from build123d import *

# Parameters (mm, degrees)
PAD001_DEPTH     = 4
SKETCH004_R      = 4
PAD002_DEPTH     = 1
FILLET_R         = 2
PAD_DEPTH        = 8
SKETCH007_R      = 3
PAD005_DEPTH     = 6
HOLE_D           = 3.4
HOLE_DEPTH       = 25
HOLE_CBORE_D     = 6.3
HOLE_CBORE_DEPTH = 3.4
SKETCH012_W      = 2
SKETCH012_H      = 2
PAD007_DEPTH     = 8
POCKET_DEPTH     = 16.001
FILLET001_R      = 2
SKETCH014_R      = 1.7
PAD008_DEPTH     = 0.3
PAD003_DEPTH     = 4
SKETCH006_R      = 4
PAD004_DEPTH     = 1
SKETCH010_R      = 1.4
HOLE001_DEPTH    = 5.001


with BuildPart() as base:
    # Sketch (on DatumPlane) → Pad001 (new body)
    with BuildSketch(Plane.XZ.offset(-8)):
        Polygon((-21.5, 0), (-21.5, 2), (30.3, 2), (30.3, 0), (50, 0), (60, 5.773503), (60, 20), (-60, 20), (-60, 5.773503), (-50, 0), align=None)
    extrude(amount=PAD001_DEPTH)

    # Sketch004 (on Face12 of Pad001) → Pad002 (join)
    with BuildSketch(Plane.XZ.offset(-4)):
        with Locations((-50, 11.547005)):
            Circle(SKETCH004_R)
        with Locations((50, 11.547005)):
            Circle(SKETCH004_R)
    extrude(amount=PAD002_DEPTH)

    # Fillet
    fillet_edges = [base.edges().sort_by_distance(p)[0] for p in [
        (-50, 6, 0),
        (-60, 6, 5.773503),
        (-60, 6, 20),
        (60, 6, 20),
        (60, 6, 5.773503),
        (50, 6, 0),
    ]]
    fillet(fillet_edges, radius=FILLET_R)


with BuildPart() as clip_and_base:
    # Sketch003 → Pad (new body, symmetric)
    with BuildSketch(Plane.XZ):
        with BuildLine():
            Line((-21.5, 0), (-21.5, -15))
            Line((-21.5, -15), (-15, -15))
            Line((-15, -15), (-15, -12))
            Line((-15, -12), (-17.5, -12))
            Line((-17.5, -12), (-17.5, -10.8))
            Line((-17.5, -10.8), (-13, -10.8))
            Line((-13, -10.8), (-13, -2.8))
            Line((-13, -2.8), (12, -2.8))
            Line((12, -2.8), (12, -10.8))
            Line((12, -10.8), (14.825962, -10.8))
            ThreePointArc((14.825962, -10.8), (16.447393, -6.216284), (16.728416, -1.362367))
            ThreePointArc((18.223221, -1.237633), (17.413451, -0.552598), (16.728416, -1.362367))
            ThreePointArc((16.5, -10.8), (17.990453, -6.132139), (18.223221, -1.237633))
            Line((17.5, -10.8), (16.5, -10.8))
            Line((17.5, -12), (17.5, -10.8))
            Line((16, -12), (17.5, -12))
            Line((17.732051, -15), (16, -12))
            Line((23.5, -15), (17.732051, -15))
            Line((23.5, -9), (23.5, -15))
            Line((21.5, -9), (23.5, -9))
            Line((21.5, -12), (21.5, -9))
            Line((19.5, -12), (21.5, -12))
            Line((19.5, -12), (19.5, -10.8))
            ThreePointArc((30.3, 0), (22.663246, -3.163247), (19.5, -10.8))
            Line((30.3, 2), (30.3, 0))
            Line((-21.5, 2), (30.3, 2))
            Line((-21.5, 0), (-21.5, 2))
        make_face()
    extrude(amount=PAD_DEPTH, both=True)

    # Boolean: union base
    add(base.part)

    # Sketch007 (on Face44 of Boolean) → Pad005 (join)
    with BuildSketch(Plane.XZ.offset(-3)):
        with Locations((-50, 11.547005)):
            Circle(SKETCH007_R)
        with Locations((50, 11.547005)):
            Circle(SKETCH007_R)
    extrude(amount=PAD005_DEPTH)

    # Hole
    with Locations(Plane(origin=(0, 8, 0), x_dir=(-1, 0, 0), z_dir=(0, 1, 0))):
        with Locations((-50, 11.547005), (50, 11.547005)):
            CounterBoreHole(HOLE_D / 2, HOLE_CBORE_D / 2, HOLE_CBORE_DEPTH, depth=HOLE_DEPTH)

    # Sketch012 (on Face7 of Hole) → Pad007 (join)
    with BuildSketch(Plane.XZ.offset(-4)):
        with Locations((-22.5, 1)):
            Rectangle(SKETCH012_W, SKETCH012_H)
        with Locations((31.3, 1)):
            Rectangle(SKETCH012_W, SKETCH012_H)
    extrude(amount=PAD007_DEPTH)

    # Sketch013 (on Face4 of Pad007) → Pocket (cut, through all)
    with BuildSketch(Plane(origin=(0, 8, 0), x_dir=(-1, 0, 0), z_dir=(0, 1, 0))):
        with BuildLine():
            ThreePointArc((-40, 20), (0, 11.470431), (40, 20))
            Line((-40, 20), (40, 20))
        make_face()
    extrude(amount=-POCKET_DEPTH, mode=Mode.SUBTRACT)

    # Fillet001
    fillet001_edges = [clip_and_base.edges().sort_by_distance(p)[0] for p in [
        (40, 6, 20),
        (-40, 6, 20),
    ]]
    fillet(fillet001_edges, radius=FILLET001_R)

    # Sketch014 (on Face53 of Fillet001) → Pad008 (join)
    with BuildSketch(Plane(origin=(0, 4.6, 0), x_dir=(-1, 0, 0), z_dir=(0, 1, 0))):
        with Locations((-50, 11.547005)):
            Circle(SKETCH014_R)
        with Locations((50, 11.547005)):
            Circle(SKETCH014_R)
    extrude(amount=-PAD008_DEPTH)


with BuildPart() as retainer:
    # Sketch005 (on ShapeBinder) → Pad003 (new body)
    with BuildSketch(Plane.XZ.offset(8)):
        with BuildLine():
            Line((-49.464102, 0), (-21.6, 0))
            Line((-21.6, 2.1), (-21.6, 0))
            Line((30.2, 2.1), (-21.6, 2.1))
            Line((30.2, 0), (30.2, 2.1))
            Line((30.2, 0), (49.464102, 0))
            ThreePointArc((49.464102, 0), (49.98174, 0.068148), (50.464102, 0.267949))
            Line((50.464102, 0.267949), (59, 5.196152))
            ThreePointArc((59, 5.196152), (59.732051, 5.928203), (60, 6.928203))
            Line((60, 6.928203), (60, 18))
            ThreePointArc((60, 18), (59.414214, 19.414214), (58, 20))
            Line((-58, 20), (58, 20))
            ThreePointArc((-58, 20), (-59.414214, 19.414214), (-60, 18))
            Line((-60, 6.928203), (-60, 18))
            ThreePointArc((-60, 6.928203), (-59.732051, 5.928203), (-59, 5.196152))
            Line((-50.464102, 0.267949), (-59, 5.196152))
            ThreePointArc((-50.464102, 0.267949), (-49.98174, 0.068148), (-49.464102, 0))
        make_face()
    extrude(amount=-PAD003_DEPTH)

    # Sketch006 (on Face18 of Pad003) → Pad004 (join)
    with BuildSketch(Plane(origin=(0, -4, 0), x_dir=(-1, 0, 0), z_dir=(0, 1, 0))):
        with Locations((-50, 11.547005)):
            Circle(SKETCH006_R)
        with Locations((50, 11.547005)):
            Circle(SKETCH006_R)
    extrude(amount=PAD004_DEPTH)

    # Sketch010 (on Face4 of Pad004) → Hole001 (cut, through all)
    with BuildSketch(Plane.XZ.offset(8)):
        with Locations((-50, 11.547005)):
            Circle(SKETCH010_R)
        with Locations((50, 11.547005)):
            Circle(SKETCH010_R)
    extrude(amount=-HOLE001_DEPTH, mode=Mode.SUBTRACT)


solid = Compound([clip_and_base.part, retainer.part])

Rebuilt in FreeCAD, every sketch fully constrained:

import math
import FreeCAD as App
import Part
import Sketcher
Q = App.Units.Quantity


def edges_at(feature, points):
    """Names of the edges that pass closest to the given points."""
    edges = feature.Shape.Edges
    near = lambda p: min(range(len(edges)), key=lambda i: edges[i].distToShape(Part.Vertex(*p))[0])
    return sorted({f"Edge{near(p) + 1}" for p in points})

doc = App.newDocument("Part")
params = doc.addObject("Spreadsheet::Sheet", "Params")
for row, (alias, value) in enumerate([
    ("sketch1_width", "120 mm"),
    ("sketch1_height", "2 mm"),
    ("sketch1_width2", "51.8 mm"),
    ("sketch1_width3", "19.7 mm"),
    ("sketch1_width4", "28.5 mm"),
    ("pad1_length", "4 mm"),
    ("sketch2_diameter", "8 mm"),
    ("pad2_length", "1 mm"),
    ("fillet_radius", "2 mm"),
    ("sketch3_radius", "10.799999 mm"),
    ("sketch3_width", "25 mm"),
    ("sketch3_width2", "1 mm"),
    ("sketch3_width3", "2 mm"),
    ("sketch3_height", "3 mm"),
    ("pad3_length", "16 mm"),
    ("sketch4_diameter", "6 mm"),
    ("pad4_length", "6 mm"),
    ("sketch5_diameter", "3.4 mm"),
    ("hole_diameter", "3.4 mm"),
    ("hole_depth", "25 mm"),
    ("hole_cbore_diameter", "6.3 mm"),
    ("hole_cbore_depth", "3.4 mm"),
    ("sketch6_width", "2 mm"),
    ("pad5_length", "8 mm"),
    ("sketch7_width", "80 mm"),
    ("fillet2_radius", "2 mm"),
    ("sketch8_diameter", "3.4 mm"),
    ("pad6_length", "0.3 mm"),
    ("sketch9_radius", "2 mm"),
    ("sketch9_width", "116 mm"),
    ("sketch9_width2", "51.8 mm"),
    ("sketch9_height", "2.1 mm"),
    ("pad7_length", "4 mm"),
    ("sketch10_diameter", "8 mm"),
    ("pad8_length", "1 mm"),
    ("sketch11_diameter", "2.8 mm"),
], start=1):
    params.set(f"A{row}", alias)
    params.set(f"B{row}", "=" + value)
    params.setAlias(f"B{row}", alias)

body = doc.addObject("PartDesign::Body", "Body")

sketch1 = doc.addObject("Sketcher::SketchObject", "Sketch")
body.addObject(sketch1)
sketch1.AttachmentSupport = (doc.XZ_Plane, [""])
sketch1.MapMode = "FlatFace"
sketch1.AttachmentOffset = App.Placement(App.Vector(0, 0, -8), App.Rotation())
sketch1.addGeometry(Part.LineSegment(App.Vector(-21.5, 0, 0), App.Vector(-21.5, 2, 0)), False)
sketch1.addGeometry(Part.LineSegment(App.Vector(-21.5, 2, 0), App.Vector(30.3, 2, 0)), False)
sketch1.addGeometry(Part.LineSegment(App.Vector(30.3, 2, 0), App.Vector(30.3, 0, 0)), False)
sketch1.addGeometry(Part.LineSegment(App.Vector(30.3, 0, 0), App.Vector(50, 0, 0)), False)
sketch1.addGeometry(Part.LineSegment(App.Vector(50, 0, 0), App.Vector(60, 5.8, 0)), False)
sketch1.addGeometry(Part.LineSegment(App.Vector(60, 5.8, 0), App.Vector(60, 20, 0)), False)
sketch1.addGeometry(Part.LineSegment(App.Vector(60, 20, 0), App.Vector(-60, 20, 0)), False)
sketch1.addGeometry(Part.LineSegment(App.Vector(-60, 20, 0), App.Vector(-60, 5.8, 0)), False)
sketch1.addGeometry(Part.LineSegment(App.Vector(-60, 5.8, 0), App.Vector(-50, 0, 0)), False)
sketch1.addGeometry(Part.LineSegment(App.Vector(-50, 0, 0), App.Vector(-21.5, 0, 0)), False)
sketch1.addConstraint(Sketcher.Constraint("Coincident", 0, 2, 1, 1))
sketch1.addConstraint(Sketcher.Constraint("Coincident", 1, 2, 2, 1))
sketch1.addConstraint(Sketcher.Constraint("Coincident", 2, 2, 3, 1))
sketch1.addConstraint(Sketcher.Constraint("Coincident", 3, 2, 4, 1))
sketch1.addConstraint(Sketcher.Constraint("Coincident", 4, 2, 5, 1))
sketch1.addConstraint(Sketcher.Constraint("Coincident", 5, 2, 6, 1))
sketch1.addConstraint(Sketcher.Constraint("Coincident", 6, 2, 7, 1))
sketch1.addConstraint(Sketcher.Constraint("Coincident", 7, 2, 8, 1))
sketch1.addConstraint(Sketcher.Constraint("Coincident", 8, 2, 9, 1))
sketch1.addConstraint(Sketcher.Constraint("Coincident", 9, 2, 0, 1))
sketch1.addConstraint(Sketcher.Constraint("Vertical", 0))
sketch1.addConstraint(Sketcher.Constraint("Horizontal", 1))
sketch1.addConstraint(Sketcher.Constraint("Vertical", 2))
sketch1.addConstraint(Sketcher.Constraint("Horizontal", 3))
sketch1.addConstraint(Sketcher.Constraint("Vertical", 5))
sketch1.addConstraint(Sketcher.Constraint("Horizontal", 6))
sketch1.addConstraint(Sketcher.Constraint("Vertical", 7))
sketch1.addConstraint(Sketcher.Constraint("Horizontal", 9))
sketch1.addConstraint(Sketcher.Constraint("Symmetric", 3, 2, 8, 2, -1, 1))
sketch1.addConstraint(Sketcher.Constraint("Symmetric", 4, 2, 7, 2, -2))
sketch1.addConstraint(Sketcher.Constraint("PointOnObject", 2, 2, -1))
sketch1.addConstraint(Sketcher.Constraint("DistanceX", 6, 2, 6, 1, Q("120 mm")))
sketch1.addConstraint(Sketcher.Constraint("DistanceY", 0, 1, 0, 2, Q("2 mm")))
sketch1.addConstraint(Sketcher.Constraint("Angle", 4, Q("30.000001 deg")))
sketch1.addConstraint(Sketcher.Constraint("DistanceX", 1, 1, 1, 2, Q("51.8 mm")))
sketch1.addConstraint(Sketcher.Constraint("DistanceX", 3, 1, 3, 2, Q("19.7 mm")))
sketch1.addConstraint(Sketcher.Constraint("DistanceX", 9, 1, 9, 2, Q("28.5 mm")))
sketch1.addConstraint(Sketcher.Constraint("DistanceY", -1, 1, 5, 2, Q("20 mm")))
sketch1.setExpression("Constraints[21]", "Params.sketch1_width")
sketch1.setExpression("Constraints[22]", "Params.sketch1_height")
sketch1.setExpression("Constraints[24]", "Params.sketch1_width2")
sketch1.setExpression("Constraints[25]", "Params.sketch1_width3")
sketch1.setExpression("Constraints[26]", "Params.sketch1_width4")
pad1 = doc.addObject("PartDesign::Pad", "Pad")
body.addObject(pad1)
pad1.Profile = sketch1
pad1.setExpression("Length", "Params.pad1_length")

sketch2 = doc.addObject("Sketcher::SketchObject", "Sketch001")
body.addObject(sketch2)
sketch2.AttachmentSupport = (doc.XZ_Plane, [""])
sketch2.MapMode = "FlatFace"
sketch2.AttachmentOffset = App.Placement(App.Vector(0, 0, -4), App.Rotation())
sketch2.addGeometry(Part.Circle(App.Vector(-50, 11.5, 0), App.Vector(0, 0, 1), 4), False)
sketch2.addGeometry(Part.Circle(App.Vector(50, 11.5, 0), App.Vector(0, 0, 1), 4), False)
sketch2.addConstraint(Sketcher.Constraint("Equal", 0, 1))
sketch2.addConstraint(Sketcher.Constraint("Symmetric", 0, 3, 1, 3, -2))
sketch2.addConstraint(Sketcher.Constraint("Diameter", 0, Q("8 mm")))
sketch2.addConstraint(Sketcher.Constraint("DistanceX", 0, 3, -1, 1, Q("50 mm")))
sketch2.addConstraint(Sketcher.Constraint("DistanceY", -1, 1, 0, 3, Q("11.547005 mm")))
sketch2.setExpression("Constraints[2]", "Params.sketch2_diameter")
pad2 = doc.addObject("PartDesign::Pad", "Pad001")
body.addObject(pad2)
pad2.Profile = sketch2
pad2.setExpression("Length", "Params.pad2_length")
doc.recompute()

fillet = doc.addObject("PartDesign::Fillet", "Fillet")
body.addObject(fillet)
fillet.Base = (pad2, edges_at(pad2, [
    (-50, 6, 0),
    (-60, 6, 5.774),
    (-60, 6, 20),
    (60, 6, 20),
    (60, 6, 5.774),
    (50, 6, 0),
]))
fillet.setExpression("Radius", "Params.fillet_radius")
body2 = doc.addObject("PartDesign::Body", "Body001")

sketch3 = doc.addObject("Sketcher::SketchObject", "Sketch002")
body2.addObject(sketch3)
sketch3.AttachmentSupport = (doc.getObject("XZ_Plane001"), [""])
sketch3.MapMode = "FlatFace"
sketch3.addGeometry(Part.LineSegment(App.Vector(-21.5, -15, 0), App.Vector(-15, -15, 0)), False)
sketch3.addGeometry(Part.LineSegment(App.Vector(-15, -15, 0), App.Vector(-15, -12, 0)), False)
sketch3.addGeometry(Part.LineSegment(App.Vector(-15, -12, 0), App.Vector(-17.5, -12, 0)), False)
sketch3.addGeometry(Part.LineSegment(App.Vector(-17.5, -12, 0), App.Vector(-17.5, -10.8, 0)), False)
sketch3.addGeometry(Part.LineSegment(App.Vector(-17.5, -10.8, 0), App.Vector(-13, -10.8, 0)), False)
sketch3.addGeometry(Part.LineSegment(App.Vector(-13, -10.8, 0), App.Vector(-13, -2.8, 0)), False)
sketch3.addGeometry(Part.LineSegment(App.Vector(-13, -2.8, 0), App.Vector(12, -2.8, 0)), False)
sketch3.addGeometry(Part.LineSegment(App.Vector(12, -2.8, 0), App.Vector(12, -10.8, 0)), False)
sketch3.addGeometry(Part.LineSegment(App.Vector(12, -10.8, 0), App.Vector(14.8, -10.8, 0)), False)
sketch3.addGeometry(Part.ArcOfCircle(Part.Circle(App.Vector(-0.5, -2.8, 0), App.Vector(0, 0, 1), 17.3), math.radians(-28), math.radians(5)), False)
sketch3.addGeometry(Part.ArcOfCircle(Part.Circle(App.Vector(17.5, -1.3, 0), App.Vector(0, 0, 1), 0.8), math.radians(5), math.radians(185)), False)
sketch3.addGeometry(Part.ArcOfCircle(Part.Circle(App.Vector(-0.5, -2.8, 0), App.Vector(0, 0, 1), 18.8), math.radians(-25), math.radians(5)), False)
sketch3.addGeometry(Part.LineSegment(App.Vector(16.5, -10.8, 0), App.Vector(17.5, -10.8, 0)), False)
sketch3.addGeometry(Part.LineSegment(App.Vector(17.5, -10.8, 0), App.Vector(17.5, -12, 0)), False)
sketch3.addGeometry(Part.LineSegment(App.Vector(17.5, -12, 0), App.Vector(16, -12, 0)), False)
sketch3.addGeometry(Part.LineSegment(App.Vector(16, -12, 0), App.Vector(17.7, -15, 0)), False)
sketch3.addGeometry(Part.LineSegment(App.Vector(17.7, -15, 0), App.Vector(23.5, -15, 0)), False)
sketch3.addGeometry(Part.LineSegment(App.Vector(23.5, -15, 0), App.Vector(23.5, -9, 0)), False)
sketch3.addGeometry(Part.LineSegment(App.Vector(23.5, -9, 0), App.Vector(21.5, -9, 0)), False)
sketch3.addGeometry(Part.LineSegment(App.Vector(21.5, -9, 0), App.Vector(21.5, -12, 0)), False)
sketch3.addGeometry(Part.LineSegment(App.Vector(21.5, -12, 0), App.Vector(19.5, -12, 0)), False)
sketch3.addGeometry(Part.LineSegment(App.Vector(19.5, -12, 0), App.Vector(19.5, -10.8, 0)), False)
sketch3.addGeometry(Part.ArcOfCircle(Part.Circle(App.Vector(30.3, -10.8, 0), App.Vector(0, 0, 1), 10.8), math.radians(90), math.radians(180)), False)
sketch3.addGeometry(Part.LineSegment(App.Vector(30.3, 0, 0), App.Vector(30.3, 2, 0)), False)
sketch3.addGeometry(Part.LineSegment(App.Vector(30.3, 2, 0), App.Vector(-21.5, 2, 0)), False)
sketch3.addGeometry(Part.LineSegment(App.Vector(-21.5, 2, 0), App.Vector(-21.5, -15, 0)), False)
sketch3.addConstraint(Sketcher.Constraint("Coincident", 0, 2, 1, 1))
sketch3.addConstraint(Sketcher.Constraint("Coincident", 1, 2, 2, 1))
sketch3.addConstraint(Sketcher.Constraint("Coincident", 2, 2, 3, 1))
sketch3.addConstraint(Sketcher.Constraint("Coincident", 3, 2, 4, 1))
sketch3.addConstraint(Sketcher.Constraint("Coincident", 4, 2, 5, 1))
sketch3.addConstraint(Sketcher.Constraint("Coincident", 5, 2, 6, 1))
sketch3.addConstraint(Sketcher.Constraint("Coincident", 6, 2, 7, 1))
sketch3.addConstraint(Sketcher.Constraint("Coincident", 7, 2, 8, 1))
sketch3.addConstraint(Sketcher.Constraint("Coincident", 8, 2, 9, 1))
sketch3.addConstraint(Sketcher.Constraint("Tangent", 9, 2, 10, 2))
sketch3.addConstraint(Sketcher.Constraint("Tangent", 10, 1, 11, 2))
sketch3.addConstraint(Sketcher.Constraint("Coincident", 11, 1, 12, 1))
sketch3.addConstraint(Sketcher.Constraint("Coincident", 12, 2, 13, 1))
sketch3.addConstraint(Sketcher.Constraint("Coincident", 13, 2, 14, 1))
sketch3.addConstraint(Sketcher.Constraint("Coincident", 14, 2, 15, 1))
sketch3.addConstraint(Sketcher.Constraint("Coincident", 15, 2, 16, 1))
sketch3.addConstraint(Sketcher.Constraint("Coincident", 16, 2, 17, 1))
sketch3.addConstraint(Sketcher.Constraint("Coincident", 17, 2, 18, 1))
sketch3.addConstraint(Sketcher.Constraint("Coincident", 18, 2, 19, 1))
sketch3.addConstraint(Sketcher.Constraint("Coincident", 19, 2, 20, 1))
sketch3.addConstraint(Sketcher.Constraint("Coincident", 20, 2, 21, 1))
sketch3.addConstraint(Sketcher.Constraint("Tangent", 21, 2, 22, 2))
sketch3.addConstraint(Sketcher.Constraint("Coincident", 22, 1, 23, 1))
sketch3.addConstraint(Sketcher.Constraint("Coincident", 23, 2, 24, 1))
sketch3.addConstraint(Sketcher.Constraint("Coincident", 24, 2, 25, 1))
sketch3.addConstraint(Sketcher.Constraint("Coincident", 25, 2, 0, 1))
sketch3.addConstraint(Sketcher.Constraint("Horizontal", 0))
sketch3.addConstraint(Sketcher.Constraint("Vertical", 1))
sketch3.addConstraint(Sketcher.Constraint("Horizontal", 2))
sketch3.addConstraint(Sketcher.Constraint("Vertical", 3))
sketch3.addConstraint(Sketcher.Constraint("Horizontal", 4))
sketch3.addConstraint(Sketcher.Constraint("Vertical", 5))
sketch3.addConstraint(Sketcher.Constraint("Horizontal", 6))
sketch3.addConstraint(Sketcher.Constraint("Vertical", 7))
sketch3.addConstraint(Sketcher.Constraint("Horizontal", 8))
sketch3.addConstraint(Sketcher.Constraint("Horizontal", 12))
sketch3.addConstraint(Sketcher.Constraint("Vertical", 13))
sketch3.addConstraint(Sketcher.Constraint("Horizontal", 14))
sketch3.addConstraint(Sketcher.Constraint("Horizontal", 16))
sketch3.addConstraint(Sketcher.Constraint("Vertical", 17))
sketch3.addConstraint(Sketcher.Constraint("Horizontal", 18))
sketch3.addConstraint(Sketcher.Constraint("Vertical", 19))
sketch3.addConstraint(Sketcher.Constraint("Horizontal", 20))
sketch3.addConstraint(Sketcher.Constraint("Vertical", 21))
sketch3.addConstraint(Sketcher.Constraint("Vertical", 23))
sketch3.addConstraint(Sketcher.Constraint("Horizontal", 24))
sketch3.addConstraint(Sketcher.Constraint("Vertical", 25))
sketch3.addConstraint(Sketcher.Constraint("Coincident", 11, 3, 9, 3))
sketch3.addConstraint(Sketcher.Constraint("Symmetric", 3, 2, 12, 2, -2))
sketch3.addConstraint(Sketcher.Constraint("PointOnObject", 22, 1, -1))
sketch3.addConstraint(Sketcher.Constraint("Horizontal", 22, 3, 3, 2))
sketch3.addConstraint(Sketcher.Constraint("Horizontal", 11, 3, 5, 2))
sketch3.addConstraint(Sketcher.Constraint("Horizontal", 4, 2, 7, 2))
sketch3.addConstraint(Sketcher.Constraint("Horizontal", 2, 2, 13, 2))
sketch3.addConstraint(Sketcher.Constraint("Horizontal", 0, 2, 15, 2))
sketch3.addConstraint(Sketcher.Constraint("Horizontal", 14, 2, 19, 2))
sketch3.addConstraint(Sketcher.Constraint("Equal", 18, 20))
sketch3.addConstraint(Sketcher.Constraint("Equal", 1, 19))
sketch3.addConstraint(Sketcher.Constraint("Equal", 20, 23))
sketch3.addConstraint(Sketcher.Constraint("Radius", 22, Q("10.799999 mm")))
sketch3.addConstraint(Sketcher.Constraint("DistanceX", 6, 1, 6, 2, Q("25 mm")))
sketch3.addConstraint(Sketcher.Constraint("DistanceX", 12, 1, 12, 2, Q("1 mm")))
sketch3.addConstraint(Sketcher.Constraint("DistanceX", 18, 2, 18, 1, Q("2 mm")))
sketch3.addConstraint(Sketcher.Constraint("DistanceY", 1, 1, 1, 2, Q("3 mm")))
sketch3.addConstraint(Sketcher.Constraint("DistanceY", 5, 1, 5, 2, Q("8 mm")))
sketch3.addConstraint(Sketcher.Constraint("DistanceY", 25, 2, 25, 1, Q("17 mm")))
sketch3.addConstraint(Sketcher.Constraint("Angle", 15, Q("-59.999997 deg")))
sketch3.addConstraint(Sketcher.Constraint("Radius", 10, Q("0.75 mm")))
sketch3.addConstraint(Sketcher.Constraint("DistanceX", 0, 1, 0, 2, Q("6.5 mm")))
sketch3.addConstraint(Sketcher.Constraint("DistanceX", 2, 2, 2, 1, Q("2.5 mm")))
sketch3.addConstraint(Sketcher.Constraint("DistanceX", 4, 1, 4, 2, Q("4.5 mm")))
sketch3.addConstraint(Sketcher.Constraint("DistanceX", 14, 2, 14, 1, Q("1.5 mm")))
sketch3.addConstraint(Sketcher.Constraint("DistanceX", 24, 2, 24, 1, Q("51.8 mm")))
sketch3.addConstraint(Sketcher.Constraint("DistanceX", 0, 2, -1, 1, Q("15 mm")))
sketch3.addConstraint(Sketcher.Constraint("DistanceX", 13, 2, 16, 2, Q("6 mm")))
sketch3.addConstraint(Sketcher.Constraint("DistanceY", 10, 3, -1, 1, Q("1.3 mm")))
sketch3.addConstraint(Sketcher.Constraint("Radius", 11, Q("18.788291 mm")))
sketch3.setExpression("Constraints[59]", "Params.sketch3_radius")
sketch3.setExpression("Constraints[60]", "Params.sketch3_width")
sketch3.setExpression("Constraints[61]", "Params.sketch3_width2")
sketch3.setExpression("Constraints[62]", "Params.sketch3_width3")
sketch3.setExpression("Constraints[63]", "Params.sketch3_height")
pad3 = doc.addObject("PartDesign::Pad", "Pad002")
body2.addObject(pad3)
pad3.Profile = sketch3
pad3.setExpression("Length", "Params.pad3_length")
pad3.Midplane = True
doc.recompute()

boolean = doc.addObject("PartDesign::Boolean", "Boolean")
body2.addObject(boolean)
boolean.Type = "Fuse"
boolean.addObjects([body])

sketch4 = doc.addObject("Sketcher::SketchObject", "Sketch003")
body2.addObject(sketch4)
sketch4.AttachmentSupport = (doc.getObject("XZ_Plane001"), [""])
sketch4.MapMode = "FlatFace"
sketch4.AttachmentOffset = App.Placement(App.Vector(0, 0, -3), App.Rotation())
sketch4.addGeometry(Part.Circle(App.Vector(-50, 11.5, 0), App.Vector(0, 0, 1), 3), False)
sketch4.addGeometry(Part.Circle(App.Vector(50, 11.5, 0), App.Vector(0, 0, 1), 3), False)
sketch4.addConstraint(Sketcher.Constraint("Equal", 0, 1))
sketch4.addConstraint(Sketcher.Constraint("Symmetric", 0, 3, 1, 3, -2))
sketch4.addConstraint(Sketcher.Constraint("Diameter", 0, Q("6 mm")))
sketch4.addConstraint(Sketcher.Constraint("DistanceX", 0, 3, -1, 1, Q("50 mm")))
sketch4.addConstraint(Sketcher.Constraint("DistanceY", -1, 1, 0, 3, Q("11.547005 mm")))
sketch4.setExpression("Constraints[2]", "Params.sketch4_diameter")
pad4 = doc.addObject("PartDesign::Pad", "Pad003")
body2.addObject(pad4)
pad4.Profile = sketch4
pad4.setExpression("Length", "Params.pad4_length")

sketch5 = doc.addObject("Sketcher::SketchObject", "Sketch004")
body2.addObject(sketch5)
sketch5.AttachmentSupport = (doc.getObject("XZ_Plane001"), [""])
sketch5.MapMode = "FlatFace"
sketch5.AttachmentOffset = App.Placement(App.Vector(0, 0, -8), App.Rotation())
sketch5.addGeometry(Part.Circle(App.Vector(50, 11.5, 0), App.Vector(0, 0, 1), 1.7), False)
sketch5.addGeometry(Part.Circle(App.Vector(-50, 11.5, 0), App.Vector(0, 0, 1), 1.7), False)
sketch5.addConstraint(Sketcher.Constraint("Equal", 0, 1))
sketch5.addConstraint(Sketcher.Constraint("Symmetric", 0, 3, 1, 3, -2))
sketch5.addConstraint(Sketcher.Constraint("Diameter", 0, Q("3.4 mm")))
sketch5.addConstraint(Sketcher.Constraint("DistanceX", -1, 1, 0, 3, Q("50 mm")))
sketch5.addConstraint(Sketcher.Constraint("DistanceY", -1, 1, 0, 3, Q("11.547005 mm")))
sketch5.setExpression("Constraints[2]", "Params.sketch5_diameter")
doc.recompute()
hole = doc.addObject("PartDesign::Hole", "Hole")
body2.addObject(hole)
hole.Profile = sketch5
hole.ThreadType = "None"
hole.setExpression("Diameter", "Params.hole_diameter")
hole.DepthType = "Dimension"
hole.setExpression("Depth", "Params.hole_depth")
hole.DrillPoint = "Flat"
hole.HoleCutType = "Counterbore"
hole.setExpression("HoleCutDiameter", "Params.hole_cbore_diameter")
hole.setExpression("HoleCutDepth", "Params.hole_cbore_depth")
hole.Reversed = True

sketch6 = doc.addObject("Sketcher::SketchObject", "Sketch005")
body2.addObject(sketch6)
sketch6.AttachmentSupport = (doc.getObject("XZ_Plane001"), [""])
sketch6.MapMode = "FlatFace"
sketch6.AttachmentOffset = App.Placement(App.Vector(0, 0, -4), App.Rotation())
sketch6.addGeometry(Part.LineSegment(App.Vector(-23.5, 2, 0), App.Vector(-23.5, 0, 0)), False)
sketch6.addGeometry(Part.LineSegment(App.Vector(-23.5, 0, 0), App.Vector(-21.5, 0, 0)), False)
sketch6.addGeometry(Part.LineSegment(App.Vector(-21.5, 0, 0), App.Vector(-21.5, 2, 0)), False)
sketch6.addGeometry(Part.LineSegment(App.Vector(-21.5, 2, 0), App.Vector(-23.5, 2, 0)), False)
sketch6.addGeometry(Part.LineSegment(App.Vector(30.3, 2, 0), App.Vector(30.3, 0, 0)), False)
sketch6.addGeometry(Part.LineSegment(App.Vector(30.3, 0, 0), App.Vector(32.3, 0, 0)), False)
sketch6.addGeometry(Part.LineSegment(App.Vector(32.3, 0, 0), App.Vector(32.3, 2, 0)), False)
sketch6.addGeometry(Part.LineSegment(App.Vector(32.3, 2, 0), App.Vector(30.3, 2, 0)), False)
sketch6.addConstraint(Sketcher.Constraint("Coincident", 0, 2, 1, 1))
sketch6.addConstraint(Sketcher.Constraint("Coincident", 1, 2, 2, 1))
sketch6.addConstraint(Sketcher.Constraint("Coincident", 2, 2, 3, 1))
sketch6.addConstraint(Sketcher.Constraint("Coincident", 3, 2, 0, 1))
sketch6.addConstraint(Sketcher.Constraint("Coincident", 4, 2, 5, 1))
sketch6.addConstraint(Sketcher.Constraint("Coincident", 5, 2, 6, 1))
sketch6.addConstraint(Sketcher.Constraint("Coincident", 6, 2, 7, 1))
sketch6.addConstraint(Sketcher.Constraint("Coincident", 7, 2, 4, 1))
sketch6.addConstraint(Sketcher.Constraint("Vertical", 0))
sketch6.addConstraint(Sketcher.Constraint("Horizontal", 1))
sketch6.addConstraint(Sketcher.Constraint("Vertical", 2))
sketch6.addConstraint(Sketcher.Constraint("Horizontal", 3))
sketch6.addConstraint(Sketcher.Constraint("Vertical", 4))
sketch6.addConstraint(Sketcher.Constraint("Horizontal", 5))
sketch6.addConstraint(Sketcher.Constraint("Vertical", 6))
sketch6.addConstraint(Sketcher.Constraint("Horizontal", 7))
sketch6.addConstraint(Sketcher.Constraint("PointOnObject", 0, 2, -1))
sketch6.addConstraint(Sketcher.Constraint("PointOnObject", 4, 2, -1))
sketch6.addConstraint(Sketcher.Constraint("Horizontal", 3, 2, 6, 2))
sketch6.addConstraint(Sketcher.Constraint("Equal", 3, 5))
sketch6.addConstraint(Sketcher.Constraint("Equal", 7, 0))
sketch6.addConstraint(Sketcher.Constraint("DistanceX", 1, 1, 1, 2, Q("2 mm")))
sketch6.addConstraint(Sketcher.Constraint("DistanceX", 0, 2, -1, 1, Q("23.5 mm")))
sketch6.addConstraint(Sketcher.Constraint("DistanceX", -1, 1, 4, 2, Q("30.3 mm")))
sketch6.setExpression("Constraints[21]", "Params.sketch6_width")
pad5 = doc.addObject("PartDesign::Pad", "Pad004")
body2.addObject(pad5)
pad5.Profile = sketch6
pad5.setExpression("Length", "Params.pad5_length")

sketch7 = doc.addObject("Sketcher::SketchObject", "Sketch006")
body2.addObject(sketch7)
sketch7.AttachmentSupport = (doc.getObject("XZ_Plane001"), [""])
sketch7.MapMode = "FlatFace"
sketch7.AttachmentOffset = App.Placement(App.Vector(0, 0, -8), App.Rotation())
sketch7.addGeometry(Part.ArcOfCircle(Part.Circle(App.Vector(0, 110, 0), App.Vector(0, 0, 1), 98), math.radians(-114), math.radians(-66)), False)
sketch7.addGeometry(Part.LineSegment(App.Vector(-40, 20, 0), App.Vector(40, 20, 0)), False)
sketch7.addConstraint(Sketcher.Constraint("Coincident", 0, 1, 1, 1))
sketch7.addConstraint(Sketcher.Constraint("Coincident", 1, 2, 0, 2))
sketch7.addConstraint(Sketcher.Constraint("Horizontal", 1))
sketch7.addConstraint(Sketcher.Constraint("PointOnObject", 0, 3, -2))
sketch7.addConstraint(Sketcher.Constraint("DistanceX", 1, 1, 1, 2, Q("80 mm")))
sketch7.addConstraint(Sketcher.Constraint("DistanceY", -1, 1, 0, 1, Q("20 mm")))
sketch7.addConstraint(Sketcher.Constraint("Radius", 0, Q("98.056159 mm")))
sketch7.setExpression("Constraints[4]", "Params.sketch7_width")
pocket1 = doc.addObject("PartDesign::Pocket", "Pocket")
body2.addObject(pocket1)
pocket1.Profile = sketch7
pocket1.Type = "ThroughAll"
pocket1.Reversed = True
doc.recompute()

fillet2 = doc.addObject("PartDesign::Fillet", "Fillet001")
body2.addObject(fillet2)
fillet2.Base = (pocket1, edges_at(pocket1, [(40, 6, 20), (-40, 6, 20)]))
fillet2.setExpression("Radius", "Params.fillet2_radius")

sketch8 = doc.addObject("Sketcher::SketchObject", "Sketch007")
body2.addObject(sketch8)
sketch8.AttachmentSupport = (doc.getObject("XZ_Plane001"), [""])
sketch8.MapMode = "FlatFace"
sketch8.AttachmentOffset = App.Placement(App.Vector(0, 0, -4.6), App.Rotation())
sketch8.addGeometry(Part.Circle(App.Vector(50, 11.5, 0), App.Vector(0, 0, 1), 1.7), False)
sketch8.addGeometry(Part.Circle(App.Vector(-50, 11.5, 0), App.Vector(0, 0, 1), 1.7), False)
sketch8.addConstraint(Sketcher.Constraint("Equal", 0, 1))
sketch8.addConstraint(Sketcher.Constraint("Symmetric", 0, 3, 1, 3, -2))
sketch8.addConstraint(Sketcher.Constraint("Diameter", 0, Q("3.4 mm")))
sketch8.addConstraint(Sketcher.Constraint("DistanceX", -1, 1, 0, 3, Q("50 mm")))
sketch8.addConstraint(Sketcher.Constraint("DistanceY", -1, 1, 0, 3, Q("11.547005 mm")))
sketch8.setExpression("Constraints[2]", "Params.sketch8_diameter")
pad6 = doc.addObject("PartDesign::Pad", "Pad005")
body2.addObject(pad6)
pad6.Profile = sketch8
pad6.setExpression("Length", "Params.pad6_length")
body3 = doc.addObject("PartDesign::Body", "Body002")

sketch9 = doc.addObject("Sketcher::SketchObject", "Sketch008")
body3.addObject(sketch9)
sketch9.AttachmentSupport = (doc.getObject("XZ_Plane002"), [""])
sketch9.MapMode = "FlatFace"
sketch9.AttachmentOffset = App.Placement(App.Vector(0, 0, 8), App.Rotation())
sketch9.addGeometry(Part.LineSegment(App.Vector(-49.5, 0, 0), App.Vector(-21.6, 0, 0)), False)
sketch9.addGeometry(Part.LineSegment(App.Vector(-21.6, 0, 0), App.Vector(-21.6, 2.1, 0)), False)
sketch9.addGeometry(Part.LineSegment(App.Vector(-21.6, 2.1, 0), App.Vector(30.2, 2.1, 0)), False)
sketch9.addGeometry(Part.LineSegment(App.Vector(30.2, 2.1, 0), App.Vector(30.2, 0, 0)), False)
sketch9.addGeometry(Part.LineSegment(App.Vector(30.2, 0, 0), App.Vector(49.5, 0, 0)), False)
sketch9.addGeometry(Part.ArcOfCircle(Part.Circle(App.Vector(49.5, 2, 0), App.Vector(0, 0, 1), 2), math.radians(-90), math.radians(-60)), False)
sketch9.addGeometry(Part.LineSegment(App.Vector(50.5, 0.3, 0), App.Vector(59, 5.2, 0)), False)
sketch9.addGeometry(Part.ArcOfCircle(Part.Circle(App.Vector(58, 6.9, 0), App.Vector(0, 0, 1), 2), math.radians(-60), math.radians(0)), False)
sketch9.addGeometry(Part.LineSegment(App.Vector(60, 6.9, 0), App.Vector(60, 18, 0)), False)
sketch9.addGeometry(Part.ArcOfCircle(Part.Circle(App.Vector(58, 18, 0), App.Vector(0, 0, 1), 2), math.radians(0), math.radians(90)), False)
sketch9.addGeometry(Part.LineSegment(App.Vector(58, 20, 0), App.Vector(-58, 20, 0)), False)
sketch9.addGeometry(Part.ArcOfCircle(Part.Circle(App.Vector(-58, 18, 0), App.Vector(0, 0, 1), 2), math.radians(90), math.radians(180)), False)
sketch9.addGeometry(Part.LineSegment(App.Vector(-60, 18, 0), App.Vector(-60, 6.9, 0)), False)
sketch9.addGeometry(Part.ArcOfCircle(Part.Circle(App.Vector(-58, 6.9, 0), App.Vector(0, 0, 1), 2), math.radians(180), math.radians(240)), False)
sketch9.addGeometry(Part.LineSegment(App.Vector(-59, 5.2, 0), App.Vector(-50.5, 0.3, 0)), False)
sketch9.addGeometry(Part.ArcOfCircle(Part.Circle(App.Vector(-49.5, 2, 0), App.Vector(0, 0, 1), 2), math.radians(-120), math.radians(-90)), False)
sketch9.addConstraint(Sketcher.Constraint("Coincident", 0, 2, 1, 1))
sketch9.addConstraint(Sketcher.Constraint("Coincident", 1, 2, 2, 1))
sketch9.addConstraint(Sketcher.Constraint("Coincident", 2, 2, 3, 1))
sketch9.addConstraint(Sketcher.Constraint("Coincident", 3, 2, 4, 1))
sketch9.addConstraint(Sketcher.Constraint("Tangent", 4, 2, 5, 1))
sketch9.addConstraint(Sketcher.Constraint("Tangent", 5, 2, 6, 1))
sketch9.addConstraint(Sketcher.Constraint("Tangent", 6, 2, 7, 1))
sketch9.addConstraint(Sketcher.Constraint("Tangent", 7, 2, 8, 1))
sketch9.addConstraint(Sketcher.Constraint("Tangent", 8, 2, 9, 1))
sketch9.addConstraint(Sketcher.Constraint("Tangent", 9, 2, 10, 1))
sketch9.addConstraint(Sketcher.Constraint("Tangent", 10, 2, 11, 1))
sketch9.addConstraint(Sketcher.Constraint("Tangent", 11, 2, 12, 1))
sketch9.addConstraint(Sketcher.Constraint("Tangent", 12, 2, 13, 1))
sketch9.addConstraint(Sketcher.Constraint("Tangent", 13, 2, 14, 1))
sketch9.addConstraint(Sketcher.Constraint("Tangent", 14, 2, 15, 1))
sketch9.addConstraint(Sketcher.Constraint("Tangent", 15, 2, 0, 1))
sketch9.addConstraint(Sketcher.Constraint("Horizontal", 0))
sketch9.addConstraint(Sketcher.Constraint("Vertical", 1))
sketch9.addConstraint(Sketcher.Constraint("Horizontal", 2))
sketch9.addConstraint(Sketcher.Constraint("Vertical", 3))
sketch9.addConstraint(Sketcher.Constraint("Horizontal", 4))
sketch9.addConstraint(Sketcher.Constraint("Vertical", 8))
sketch9.addConstraint(Sketcher.Constraint("Horizontal", 10))
sketch9.addConstraint(Sketcher.Constraint("Vertical", 12))
sketch9.addConstraint(Sketcher.Constraint("Equal", 7, 9))
sketch9.addConstraint(Sketcher.Constraint("Equal", 9, 11))
sketch9.addConstraint(Sketcher.Constraint("Equal", 11, 13))
sketch9.addConstraint(Sketcher.Constraint("Equal", 5, 15))
sketch9.addConstraint(Sketcher.Constraint("Symmetric", 4, 2, 15, 2, -1, 1))
sketch9.addConstraint(Sketcher.Constraint("Symmetric", 7, 3, 13, 3, -2))
sketch9.addConstraint(Sketcher.Constraint("PointOnObject", 0, 2, -1))
sketch9.addConstraint(Sketcher.Constraint("Radius", 7, Q("2 mm")))
sketch9.addConstraint(Sketcher.Constraint("DistanceX", 10, 2, 10, 1, Q("116 mm")))
sketch9.addConstraint(Sketcher.Constraint("Angle", 6, Q("30 deg")))
sketch9.addConstraint(Sketcher.Constraint("DistanceX", 2, 1, 2, 2, Q("51.8 mm")))
sketch9.addConstraint(Sketcher.Constraint("DistanceY", 1, 1, 1, 2, Q("2.1 mm")))
sketch9.addConstraint(Sketcher.Constraint("DistanceY", -1, 1, 9, 3, Q("18.000001 mm")))
sketch9.addConstraint(Sketcher.Constraint("DistanceX", 4, 2, 5, 2, Q("1 mm")))
sketch9.addConstraint(Sketcher.Constraint("DistanceX", 0, 2, -1, 1, Q("21.6 mm")))
sketch9.addConstraint(Sketcher.Constraint("DistanceX", 0, 1, 0, 2, Q("27.864102 mm")))
sketch9.setExpression("Constraints[31]", "Params.sketch9_radius")
sketch9.setExpression("Constraints[32]", "Params.sketch9_width")
sketch9.setExpression("Constraints[34]", "Params.sketch9_width2")
sketch9.setExpression("Constraints[35]", "Params.sketch9_height")
pad7 = doc.addObject("PartDesign::Pad", "Pad006")
body3.addObject(pad7)
pad7.Profile = sketch9
pad7.setExpression("Length", "Params.pad7_length")
pad7.Reversed = True

sketch10 = doc.addObject("Sketcher::SketchObject", "Sketch009")
body3.addObject(sketch10)
sketch10.AttachmentSupport = (doc.getObject("XZ_Plane002"), [""])
sketch10.MapMode = "FlatFace"
sketch10.AttachmentOffset = App.Placement(App.Vector(0, 0, 4), App.Rotation())
sketch10.addGeometry(Part.Circle(App.Vector(50, 11.5, 0), App.Vector(0, 0, 1), 4), False)
sketch10.addGeometry(Part.Circle(App.Vector(-50, 11.5, 0), App.Vector(0, 0, 1), 4), False)
sketch10.addConstraint(Sketcher.Constraint("Equal", 0, 1))
sketch10.addConstraint(Sketcher.Constraint("Symmetric", 0, 3, 1, 3, -2))
sketch10.addConstraint(Sketcher.Constraint("Diameter", 0, Q("8 mm")))
sketch10.addConstraint(Sketcher.Constraint("DistanceX", -1, 1, 0, 3, Q("50 mm")))
sketch10.addConstraint(Sketcher.Constraint("DistanceY", -1, 1, 0, 3, Q("11.547005 mm")))
sketch10.setExpression("Constraints[2]", "Params.sketch10_diameter")
pad8 = doc.addObject("PartDesign::Pad", "Pad007")
body3.addObject(pad8)
pad8.Profile = sketch10
pad8.setExpression("Length", "Params.pad8_length")
pad8.Reversed = True

sketch11 = doc.addObject("Sketcher::SketchObject", "Sketch010")
body3.addObject(sketch11)
sketch11.AttachmentSupport = (doc.getObject("XZ_Plane002"), [""])
sketch11.MapMode = "FlatFace"
sketch11.AttachmentOffset = App.Placement(App.Vector(0, 0, 8), App.Rotation())
sketch11.addGeometry(Part.Circle(App.Vector(-50, 11.5, 0), App.Vector(0, 0, 1), 1.4), False)
sketch11.addGeometry(Part.Circle(App.Vector(50, 11.5, 0), App.Vector(0, 0, 1), 1.4), False)
sketch11.addConstraint(Sketcher.Constraint("Equal", 0, 1))
sketch11.addConstraint(Sketcher.Constraint("Symmetric", 0, 3, 1, 3, -2))
sketch11.addConstraint(Sketcher.Constraint("Diameter", 0, Q("2.8 mm")))
sketch11.addConstraint(Sketcher.Constraint("DistanceX", 0, 3, -1, 1, Q("50 mm")))
sketch11.addConstraint(Sketcher.Constraint("DistanceY", -1, 1, 0, 3, Q("11.547005 mm")))
sketch11.setExpression("Constraints[2]", "Params.sketch11_diameter")
pocket2 = doc.addObject("PartDesign::Pocket", "Pocket001")
body3.addObject(pocket2)
pocket2.Profile = sketch11
pocket2.Type = "ThroughAll"

doc.recompute()
